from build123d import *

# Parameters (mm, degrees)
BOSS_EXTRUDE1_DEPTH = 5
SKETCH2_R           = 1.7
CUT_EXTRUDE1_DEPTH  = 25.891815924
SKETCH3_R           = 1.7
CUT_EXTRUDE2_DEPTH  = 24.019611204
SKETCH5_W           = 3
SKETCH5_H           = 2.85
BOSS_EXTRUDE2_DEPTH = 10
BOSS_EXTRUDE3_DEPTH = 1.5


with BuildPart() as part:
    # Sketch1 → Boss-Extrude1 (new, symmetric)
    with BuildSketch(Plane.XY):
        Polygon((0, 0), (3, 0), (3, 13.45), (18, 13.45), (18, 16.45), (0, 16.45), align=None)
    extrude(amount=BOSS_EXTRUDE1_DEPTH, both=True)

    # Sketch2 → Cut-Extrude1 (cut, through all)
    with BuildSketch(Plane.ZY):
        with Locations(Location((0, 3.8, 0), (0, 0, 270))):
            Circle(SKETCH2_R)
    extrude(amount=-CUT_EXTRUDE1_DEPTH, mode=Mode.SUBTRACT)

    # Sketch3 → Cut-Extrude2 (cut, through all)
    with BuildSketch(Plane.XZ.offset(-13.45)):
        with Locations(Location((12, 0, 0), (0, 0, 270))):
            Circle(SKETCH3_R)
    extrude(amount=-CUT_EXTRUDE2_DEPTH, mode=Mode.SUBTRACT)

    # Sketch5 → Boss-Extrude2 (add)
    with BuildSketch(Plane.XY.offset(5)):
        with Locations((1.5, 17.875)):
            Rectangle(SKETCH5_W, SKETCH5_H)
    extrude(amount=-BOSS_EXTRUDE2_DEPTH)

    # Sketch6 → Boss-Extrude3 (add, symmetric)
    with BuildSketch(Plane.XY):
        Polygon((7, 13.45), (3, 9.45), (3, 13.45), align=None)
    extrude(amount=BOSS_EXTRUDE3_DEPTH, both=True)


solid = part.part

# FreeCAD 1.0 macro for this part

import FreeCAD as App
import Part
import Sketcher
from FreeCAD import Vector

doc = App.newDocument("Part")
params = doc.addObject("Spreadsheet::Sheet", "Params")
for row, (alias, value) in enumerate([
    ("sketch1_width", "3 mm"),
    ("sketch1_width2", "15 mm"),
    ("sketch1_height", "13.45 mm"),
    ("pad1_length", "10 mm"),
    ("sketch2_diameter", "3.4 mm"),
    ("sketch3_diameter", "3.4 mm"),
    ("sketch4_width", "3 mm"),
    ("sketch4_height", "2.85 mm"),
    ("pad2_length", "10 mm"),
    ("sketch5_width", "4 mm"),
    ("pad3_length", "3 mm"),
], start=1):
    params.set(f"A{row}", alias)
    params.set(f"B{row}", "=" + value)
    params.setAlias(f"B{row}", alias)

body = doc.addObject("PartDesign::Body", "Body")

sketch1 = body.newObject("Sketcher::SketchObject", "Sketch")
sketch1.AttachmentSupport = (doc.getObject("XY_Plane"), [""])
sketch1.MapMode = "FlatFace"
sketch1.addGeometry([
    Part.LineSegment(Vector(0, 0, 0), Vector(3, 0, 0)),
    Part.LineSegment(Vector(3, 0, 0), Vector(3, 13.4, 0)),
    Part.LineSegment(Vector(3, 13.4, 0), Vector(18, 13.4, 0)),
    Part.LineSegment(Vector(18, 13.4, 0), Vector(18, 16.4, 0)),
    Part.LineSegment(Vector(18, 16.4, 0), Vector(0, 16.4, 0)),
    Part.LineSegment(Vector(0, 16.4, 0), Vector(0, 0, 0)),
], False)
sketch1.addConstraint([
    Sketcher.Constraint("Coincident", 0, 2, 1, 1),
    Sketcher.Constraint("Coincident", 1, 2, 2, 1),
    Sketcher.Constraint("Coincident", 2, 2, 3, 1),
    Sketcher.Constraint("Coincident", 3, 2, 4, 1),
    Sketcher.Constraint("Coincident", 4, 2, 5, 1),
    Sketcher.Constraint("Coincident", 5, 2, 0, 1),
    Sketcher.Constraint("Horizontal", 0),
    Sketcher.Constraint("Vertical", 1),
    Sketcher.Constraint("Horizontal", 2),
    Sketcher.Constraint("Vertical", 3),
    Sketcher.Constraint("Horizontal", 4),
    Sketcher.Constraint("Vertical", 5),
    Sketcher.Constraint("Coincident", 5, 2, -1, 1),
    Sketcher.Constraint("Equal", 0, 3),
    Sketcher.Constraint("DistanceX", 0, 1, 0, 2, 3.0),
    Sketcher.Constraint("DistanceX", 2, 1, 2, 2, 15.0),
    Sketcher.Constraint("DistanceY", 1, 1, 1, 2, 13.45),
])
sketch1.setExpression("Constraints[14]", "Params.sketch1_width")
sketch1.setExpression("Constraints[15]", "Params.sketch1_width2")
sketch1.setExpression("Constraints[16]", "Params.sketch1_height")
pad1 = body.newObject("PartDesign::Pad", "Pad")
pad1.Profile = sketch1
pad1.setExpression("Length", "Params.pad1_length")
pad1.Midplane = True

sketch2 = body.newObject("Sketcher::SketchObject", "Sketch001")
sketch2.AttachmentSupport = (doc.getObject("YZ_Plane"), [""])
sketch2.MapMode = "FlatFace"
sketch2.addGeometry(Part.Circle(Vector(3.8, 0, 0), Vector(0, 0, 1), 1.7), False)
sketch2.addConstraint([
    Sketcher.Constraint("PointOnObject", 0, 3, -1),
    Sketcher.Constraint("Diameter", 0, 3.4),
    Sketcher.Constraint("DistanceX", -1, 1, 0, 3, 3.8),
])
sketch2.setExpression("Constraints[1]", "Params.sketch2_diameter")
pocket1 = body.newObject("PartDesign::Pocket", "Pocket")
pocket1.Profile = sketch2
pocket1.Type = "ThroughAll"
pocket1.Reversed = True

sketch3 = body.newObject("Sketcher::SketchObject", "Sketch002")
sketch3.AttachmentSupport = (doc.getObject("XZ_Plane"), [""])
sketch3.MapMode = "FlatFace"
sketch3.AttachmentOffset = App.Placement(Vector(0, 0, -13.45), App.Rotation())
sketch3.addGeometry(Part.Circle(Vector(12, 0, 0), Vector(0, 0, 1), 1.7), False)
sketch3.addConstraint([
    Sketcher.Constraint("PointOnObject", 0, 3, -1),
    Sketcher.Constraint("Diameter", 0, 3.4),
    Sketcher.Constraint("DistanceX", -1, 1, 0, 3, 12.0),
])
sketch3.setExpression("Constraints[1]", "Params.sketch3_diameter")
pocket2 = body.newObject("PartDesign::Pocket", "Pocket001")
pocket2.Profile = sketch3
pocket2.Type = "ThroughAll"

sketch4 = body.newObject("Sketcher::SketchObject", "Sketch003")
sketch4.AttachmentSupport = (doc.getObject("XY_Plane"), [""])
sketch4.MapMode = "FlatFace"
sketch4.AttachmentOffset = App.Placement(Vector(0, 0, 5), App.Rotation())
sketch4.addGeometry([
    Part.LineSegment(Vector(0, 19.3, 0), Vector(0, 16.4, 0)),
    Part.LineSegment(Vector(0, 16.4, 0), Vector(3, 16.4, 0)),
    Part.LineSegment(Vector(3, 16.4, 0), Vector(3, 19.3, 0)),
    Part.LineSegment(Vector(3, 19.3, 0), Vector(0, 19.3, 0)),
], False)
sketch4.addConstraint([
    Sketcher.Constraint("Coincident", 0, 2, 1, 1),
    Sketcher.Constraint("Coincident", 1, 2, 2, 1),
    Sketcher.Constraint("Coincident", 2, 2, 3, 1),
    Sketcher.Constraint("Coincident", 3, 2, 0, 1),
    Sketcher.Constraint("Vertical", 0),
    Sketcher.Constraint("Horizontal", 1),
    Sketcher.Constraint("Vertical", 2),
    Sketcher.Constraint("Horizontal", 3),
    Sketcher.Constraint("PointOnObject", 0, 2, -2),
    Sketcher.Constraint("DistanceX", 1, 1, 1, 2, 3.0),
    Sketcher.Constraint("DistanceY", 0, 2, 0, 1, 2.85),
    Sketcher.Constraint("DistanceY", -1, 1, 2, 2, 19.3),
])
sketch4.setExpression("Constraints[9]", "Params.sketch4_width")
sketch4.setExpression("Constraints[10]", "Params.sketch4_height")
pad2 = body.newObject("PartDesign::Pad", "Pad001")
pad2.Profile = sketch4
pad2.setExpression("Length", "Params.pad2_length")
pad2.Reversed = True

sketch5 = body.newObject("Sketcher::SketchObject", "Sketch004")
sketch5.AttachmentSupport = (doc.getObject("XY_Plane"), [""])
sketch5.MapMode = "FlatFace"
sketch5.addGeometry([
    Part.LineSegment(Vector(3, 9.4, 0), Vector(7, 13.4, 0)),
    Part.LineSegment(Vector(7, 13.4, 0), Vector(3, 13.4, 0)),
    Part.LineSegment(Vector(3, 13.4, 0), Vector(3, 9.4, 0)),
], False)
sketch5.addConstraint([
    Sketcher.Constraint("Coincident", 0, 2, 1, 1),
    Sketcher.Constraint("Coincident", 1, 2, 2, 1),
    Sketcher.Constraint("Coincident", 2, 2, 0, 1),
    Sketcher.Constraint("Horizontal", 1),
    Sketcher.Constraint("Vertical", 2),
    Sketcher.Constraint("Equal", 1, 2),
    Sketcher.Constraint("DistanceX", 1, 2, 1, 1, 4.0),
    Sketcher.Constraint("DistanceX", -1, 1, 0, 2, 7.0),
    Sketcher.Constraint("DistanceY", -1, 1, 0, 2, 13.45),
])
sketch5.setExpression("Constraints[6]", "Params.sketch5_width")
pad3 = body.newObject("PartDesign::Pad", "Pad002")
pad3.Profile = sketch5
pad3.setExpression("Length", "Params.pad3_length")
pad3.Midplane = True

doc.recompute()
